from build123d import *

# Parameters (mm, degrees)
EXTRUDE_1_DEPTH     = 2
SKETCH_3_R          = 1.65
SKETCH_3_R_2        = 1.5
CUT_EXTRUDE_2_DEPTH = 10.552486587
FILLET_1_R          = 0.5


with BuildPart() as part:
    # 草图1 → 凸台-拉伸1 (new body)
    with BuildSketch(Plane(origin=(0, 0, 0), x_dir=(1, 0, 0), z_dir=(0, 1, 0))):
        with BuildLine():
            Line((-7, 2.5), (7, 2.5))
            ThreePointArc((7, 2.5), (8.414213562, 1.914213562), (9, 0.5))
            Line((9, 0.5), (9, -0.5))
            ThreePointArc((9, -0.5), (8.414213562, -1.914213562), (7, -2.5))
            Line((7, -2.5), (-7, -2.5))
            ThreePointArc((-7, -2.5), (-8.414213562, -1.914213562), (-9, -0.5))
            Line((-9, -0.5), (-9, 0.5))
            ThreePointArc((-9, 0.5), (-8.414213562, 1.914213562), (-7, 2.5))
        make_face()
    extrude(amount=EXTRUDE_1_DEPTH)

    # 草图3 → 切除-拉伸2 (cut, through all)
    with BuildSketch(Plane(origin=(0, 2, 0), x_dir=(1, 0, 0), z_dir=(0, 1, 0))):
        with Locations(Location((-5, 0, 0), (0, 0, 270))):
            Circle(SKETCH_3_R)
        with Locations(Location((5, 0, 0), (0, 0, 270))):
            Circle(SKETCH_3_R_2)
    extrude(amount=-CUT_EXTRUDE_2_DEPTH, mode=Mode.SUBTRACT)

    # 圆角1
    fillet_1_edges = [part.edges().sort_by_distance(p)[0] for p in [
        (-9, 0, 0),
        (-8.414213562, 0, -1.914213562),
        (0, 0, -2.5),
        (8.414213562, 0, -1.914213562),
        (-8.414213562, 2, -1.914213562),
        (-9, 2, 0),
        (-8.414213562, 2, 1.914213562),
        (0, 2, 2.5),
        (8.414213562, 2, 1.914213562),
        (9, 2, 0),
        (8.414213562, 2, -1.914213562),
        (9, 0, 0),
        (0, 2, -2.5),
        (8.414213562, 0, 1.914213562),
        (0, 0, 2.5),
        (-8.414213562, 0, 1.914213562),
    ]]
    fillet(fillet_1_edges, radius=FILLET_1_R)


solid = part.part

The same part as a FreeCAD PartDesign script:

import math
import FreeCAD as App
import Part
import Sketcher
from FreeCAD import Vector
Q = App.Units.Quantity


def edges_at(feature, points):
    """Names of the edges that pass closest to the given points."""
    edges = feature.Shape.Edges
    near = lambda p: min(range(len(edges)), key=lambda i: edges[i].distToShape(Part.Vertex(*p))[0])
    return sorted({f"Edge{near(p) + 1}" for p in points})

doc = App.newDocument("Part")
body = doc.addObject("PartDesign::Body", "Body")

sketch1 = body.newObject("Sketcher::SketchObject", "Sketch")
sketch1.AttachmentSupport = (doc.getObject("XZ_Plane"), [""])
sketch1.MapMode = "FlatFace"
sketch1.addGeometry([
    Part.LineSegment(Vector(7, -2.5, 0), Vector(-7, -2.5, 0)),
    Part.ArcOfCircle(Part.Circle(Vector(-7, -0.5, 0), Vector(0, 0, 1), 2), math.radians(-180), math.radians(-90)),
    Part.LineSegment(Vector(-9, -0.5, 0), Vector(-9, 0.5, 0)),
    Part.ArcOfCircle(Part.Circle(Vector(-7, 0.5, 0), Vector(0, 0, 1), 2), math.radians(90), math.radians(180)),
    Part.LineSegment(Vector(-7, 2.5, 0), Vector(7, 2.5, 0)),
    Part.ArcOfCircle(Part.Circle(Vector(7, 0.5, 0), Vector(0, 0, 1), 2), math.radians(0), math.radians(90)),
    Part.LineSegment(Vector(9, 0.5, 0), Vector(9, -0.5, 0)),
    Part.ArcOfCircle(Part.Circle(Vector(7, -0.5, 0), Vector(0, 0, 1), 2), math.radians(-90), math.radians(0)),
], False)
sketch1.addConstraint([
    Sketcher.Constraint("Tangent", 0, 2, 1, 2),
    Sketcher.Constraint("Tangent", 1, 1, 2, 1),
    Sketcher.Constraint("Tangent", 2, 2, 3, 2),
    Sketcher.Constraint("Tangent", 3, 1, 4, 1),
    Sketcher.Constraint("Tangent", 4, 2, 5, 2),
    Sketcher.Constraint("Tangent", 5, 1, 6, 1),
    Sketcher.Constraint("Tangent", 6, 2, 7, 2),
    Sketcher.Constraint("Tangent", 7, 1, 0, 1),
    Sketcher.Constraint("Horizontal", 0),
    Sketcher.Constraint("Vertical", 2),
    Sketcher.Constraint("Horizontal", 4),
    Sketcher.Constraint("Vertical", 6),
    Sketcher.Constraint("Equal", 1, 3),
    Sketcher.Constraint("Equal", 3, 5),
    Sketcher.Constraint("Equal", 5, 7),
    Sketcher.Constraint("Symmetric", 1, 3, 5, 3, -1, 1),
    Sketcher.Constraint("Radius", 1, Q("2 mm")),
    Sketcher.Constraint("DistanceX", 0, 2, 0, 1, Q("14 mm")),
    Sketcher.Constraint("DistanceY", 2, 1, 2, 2, Q("1 mm")),
])
pad1 = body.newObject("PartDesign::Pad", "Pad")
pad1.Profile = sketch1
pad1.Length = 2
pad1.Reversed = True

sketch2 = body.newObject("Sketcher::SketchObject", "Sketch001")
sketch2.AttachmentSupport = (doc.getObject("XZ_Plane"), [""])
sketch2.MapMode = "FlatFace"
sketch2.AttachmentOffset = App.Placement(Vector(0, 0, -2), App.Rotation())
sketch2.addGeometry([
    Part.Circle(Vector(-5, 0, 0), Vector(0, 0, 1), 1.65),
    Part.Circle(Vector(5, 0, 0), Vector(0, 0, 1), 1.5),
], False)
sketch2.addConstraint([
    Sketcher.Constraint("Symmetric", 0, 3, 1, 3, -1, 1),
    Sketcher.Constraint("PointOnObject", 0, 3, -1),
    Sketcher.Constraint("Diameter", 1, Q("3 mm")),
    Sketcher.Constraint("Diameter", 0, Q("3.3 mm")),
    Sketcher.Constraint("DistanceX", 0, 3, -1, 1, Q("5 mm")),
])
pocket1 = body.newObject("PartDesign::Pocket", "Pocket")
pocket1.Profile = sketch2
pocket1.Type = "ThroughAll"
pocket1.Reversed = True
doc.recompute()

fillet = body.newObject("PartDesign::Fillet", "Fillet")
fillet.Base = (pocket1, edges_at(pocket1, [
    (-9, 0, 0),
    (-8.414, 0, -1.914),
    (0, 0, -2.5),
    (8.414, 0, -1.914),
    (-8.414, 2, -1.914),
    (-9, 2, 0),
    (-8.414, 2, 1.914),
    (0, 2, 2.5),
    (8.414, 2, 1.914),
    (9, 2, 0),
    (8.414, 2, -1.914),
    (9, 0, 0),
    (0, 2, -2.5),
    (8.414, 0, 1.914),
    (0, 0, 2.5),
    (-8.414, 0, 1.914),
]))
fillet.Radius = 0.5

doc.recompute()
